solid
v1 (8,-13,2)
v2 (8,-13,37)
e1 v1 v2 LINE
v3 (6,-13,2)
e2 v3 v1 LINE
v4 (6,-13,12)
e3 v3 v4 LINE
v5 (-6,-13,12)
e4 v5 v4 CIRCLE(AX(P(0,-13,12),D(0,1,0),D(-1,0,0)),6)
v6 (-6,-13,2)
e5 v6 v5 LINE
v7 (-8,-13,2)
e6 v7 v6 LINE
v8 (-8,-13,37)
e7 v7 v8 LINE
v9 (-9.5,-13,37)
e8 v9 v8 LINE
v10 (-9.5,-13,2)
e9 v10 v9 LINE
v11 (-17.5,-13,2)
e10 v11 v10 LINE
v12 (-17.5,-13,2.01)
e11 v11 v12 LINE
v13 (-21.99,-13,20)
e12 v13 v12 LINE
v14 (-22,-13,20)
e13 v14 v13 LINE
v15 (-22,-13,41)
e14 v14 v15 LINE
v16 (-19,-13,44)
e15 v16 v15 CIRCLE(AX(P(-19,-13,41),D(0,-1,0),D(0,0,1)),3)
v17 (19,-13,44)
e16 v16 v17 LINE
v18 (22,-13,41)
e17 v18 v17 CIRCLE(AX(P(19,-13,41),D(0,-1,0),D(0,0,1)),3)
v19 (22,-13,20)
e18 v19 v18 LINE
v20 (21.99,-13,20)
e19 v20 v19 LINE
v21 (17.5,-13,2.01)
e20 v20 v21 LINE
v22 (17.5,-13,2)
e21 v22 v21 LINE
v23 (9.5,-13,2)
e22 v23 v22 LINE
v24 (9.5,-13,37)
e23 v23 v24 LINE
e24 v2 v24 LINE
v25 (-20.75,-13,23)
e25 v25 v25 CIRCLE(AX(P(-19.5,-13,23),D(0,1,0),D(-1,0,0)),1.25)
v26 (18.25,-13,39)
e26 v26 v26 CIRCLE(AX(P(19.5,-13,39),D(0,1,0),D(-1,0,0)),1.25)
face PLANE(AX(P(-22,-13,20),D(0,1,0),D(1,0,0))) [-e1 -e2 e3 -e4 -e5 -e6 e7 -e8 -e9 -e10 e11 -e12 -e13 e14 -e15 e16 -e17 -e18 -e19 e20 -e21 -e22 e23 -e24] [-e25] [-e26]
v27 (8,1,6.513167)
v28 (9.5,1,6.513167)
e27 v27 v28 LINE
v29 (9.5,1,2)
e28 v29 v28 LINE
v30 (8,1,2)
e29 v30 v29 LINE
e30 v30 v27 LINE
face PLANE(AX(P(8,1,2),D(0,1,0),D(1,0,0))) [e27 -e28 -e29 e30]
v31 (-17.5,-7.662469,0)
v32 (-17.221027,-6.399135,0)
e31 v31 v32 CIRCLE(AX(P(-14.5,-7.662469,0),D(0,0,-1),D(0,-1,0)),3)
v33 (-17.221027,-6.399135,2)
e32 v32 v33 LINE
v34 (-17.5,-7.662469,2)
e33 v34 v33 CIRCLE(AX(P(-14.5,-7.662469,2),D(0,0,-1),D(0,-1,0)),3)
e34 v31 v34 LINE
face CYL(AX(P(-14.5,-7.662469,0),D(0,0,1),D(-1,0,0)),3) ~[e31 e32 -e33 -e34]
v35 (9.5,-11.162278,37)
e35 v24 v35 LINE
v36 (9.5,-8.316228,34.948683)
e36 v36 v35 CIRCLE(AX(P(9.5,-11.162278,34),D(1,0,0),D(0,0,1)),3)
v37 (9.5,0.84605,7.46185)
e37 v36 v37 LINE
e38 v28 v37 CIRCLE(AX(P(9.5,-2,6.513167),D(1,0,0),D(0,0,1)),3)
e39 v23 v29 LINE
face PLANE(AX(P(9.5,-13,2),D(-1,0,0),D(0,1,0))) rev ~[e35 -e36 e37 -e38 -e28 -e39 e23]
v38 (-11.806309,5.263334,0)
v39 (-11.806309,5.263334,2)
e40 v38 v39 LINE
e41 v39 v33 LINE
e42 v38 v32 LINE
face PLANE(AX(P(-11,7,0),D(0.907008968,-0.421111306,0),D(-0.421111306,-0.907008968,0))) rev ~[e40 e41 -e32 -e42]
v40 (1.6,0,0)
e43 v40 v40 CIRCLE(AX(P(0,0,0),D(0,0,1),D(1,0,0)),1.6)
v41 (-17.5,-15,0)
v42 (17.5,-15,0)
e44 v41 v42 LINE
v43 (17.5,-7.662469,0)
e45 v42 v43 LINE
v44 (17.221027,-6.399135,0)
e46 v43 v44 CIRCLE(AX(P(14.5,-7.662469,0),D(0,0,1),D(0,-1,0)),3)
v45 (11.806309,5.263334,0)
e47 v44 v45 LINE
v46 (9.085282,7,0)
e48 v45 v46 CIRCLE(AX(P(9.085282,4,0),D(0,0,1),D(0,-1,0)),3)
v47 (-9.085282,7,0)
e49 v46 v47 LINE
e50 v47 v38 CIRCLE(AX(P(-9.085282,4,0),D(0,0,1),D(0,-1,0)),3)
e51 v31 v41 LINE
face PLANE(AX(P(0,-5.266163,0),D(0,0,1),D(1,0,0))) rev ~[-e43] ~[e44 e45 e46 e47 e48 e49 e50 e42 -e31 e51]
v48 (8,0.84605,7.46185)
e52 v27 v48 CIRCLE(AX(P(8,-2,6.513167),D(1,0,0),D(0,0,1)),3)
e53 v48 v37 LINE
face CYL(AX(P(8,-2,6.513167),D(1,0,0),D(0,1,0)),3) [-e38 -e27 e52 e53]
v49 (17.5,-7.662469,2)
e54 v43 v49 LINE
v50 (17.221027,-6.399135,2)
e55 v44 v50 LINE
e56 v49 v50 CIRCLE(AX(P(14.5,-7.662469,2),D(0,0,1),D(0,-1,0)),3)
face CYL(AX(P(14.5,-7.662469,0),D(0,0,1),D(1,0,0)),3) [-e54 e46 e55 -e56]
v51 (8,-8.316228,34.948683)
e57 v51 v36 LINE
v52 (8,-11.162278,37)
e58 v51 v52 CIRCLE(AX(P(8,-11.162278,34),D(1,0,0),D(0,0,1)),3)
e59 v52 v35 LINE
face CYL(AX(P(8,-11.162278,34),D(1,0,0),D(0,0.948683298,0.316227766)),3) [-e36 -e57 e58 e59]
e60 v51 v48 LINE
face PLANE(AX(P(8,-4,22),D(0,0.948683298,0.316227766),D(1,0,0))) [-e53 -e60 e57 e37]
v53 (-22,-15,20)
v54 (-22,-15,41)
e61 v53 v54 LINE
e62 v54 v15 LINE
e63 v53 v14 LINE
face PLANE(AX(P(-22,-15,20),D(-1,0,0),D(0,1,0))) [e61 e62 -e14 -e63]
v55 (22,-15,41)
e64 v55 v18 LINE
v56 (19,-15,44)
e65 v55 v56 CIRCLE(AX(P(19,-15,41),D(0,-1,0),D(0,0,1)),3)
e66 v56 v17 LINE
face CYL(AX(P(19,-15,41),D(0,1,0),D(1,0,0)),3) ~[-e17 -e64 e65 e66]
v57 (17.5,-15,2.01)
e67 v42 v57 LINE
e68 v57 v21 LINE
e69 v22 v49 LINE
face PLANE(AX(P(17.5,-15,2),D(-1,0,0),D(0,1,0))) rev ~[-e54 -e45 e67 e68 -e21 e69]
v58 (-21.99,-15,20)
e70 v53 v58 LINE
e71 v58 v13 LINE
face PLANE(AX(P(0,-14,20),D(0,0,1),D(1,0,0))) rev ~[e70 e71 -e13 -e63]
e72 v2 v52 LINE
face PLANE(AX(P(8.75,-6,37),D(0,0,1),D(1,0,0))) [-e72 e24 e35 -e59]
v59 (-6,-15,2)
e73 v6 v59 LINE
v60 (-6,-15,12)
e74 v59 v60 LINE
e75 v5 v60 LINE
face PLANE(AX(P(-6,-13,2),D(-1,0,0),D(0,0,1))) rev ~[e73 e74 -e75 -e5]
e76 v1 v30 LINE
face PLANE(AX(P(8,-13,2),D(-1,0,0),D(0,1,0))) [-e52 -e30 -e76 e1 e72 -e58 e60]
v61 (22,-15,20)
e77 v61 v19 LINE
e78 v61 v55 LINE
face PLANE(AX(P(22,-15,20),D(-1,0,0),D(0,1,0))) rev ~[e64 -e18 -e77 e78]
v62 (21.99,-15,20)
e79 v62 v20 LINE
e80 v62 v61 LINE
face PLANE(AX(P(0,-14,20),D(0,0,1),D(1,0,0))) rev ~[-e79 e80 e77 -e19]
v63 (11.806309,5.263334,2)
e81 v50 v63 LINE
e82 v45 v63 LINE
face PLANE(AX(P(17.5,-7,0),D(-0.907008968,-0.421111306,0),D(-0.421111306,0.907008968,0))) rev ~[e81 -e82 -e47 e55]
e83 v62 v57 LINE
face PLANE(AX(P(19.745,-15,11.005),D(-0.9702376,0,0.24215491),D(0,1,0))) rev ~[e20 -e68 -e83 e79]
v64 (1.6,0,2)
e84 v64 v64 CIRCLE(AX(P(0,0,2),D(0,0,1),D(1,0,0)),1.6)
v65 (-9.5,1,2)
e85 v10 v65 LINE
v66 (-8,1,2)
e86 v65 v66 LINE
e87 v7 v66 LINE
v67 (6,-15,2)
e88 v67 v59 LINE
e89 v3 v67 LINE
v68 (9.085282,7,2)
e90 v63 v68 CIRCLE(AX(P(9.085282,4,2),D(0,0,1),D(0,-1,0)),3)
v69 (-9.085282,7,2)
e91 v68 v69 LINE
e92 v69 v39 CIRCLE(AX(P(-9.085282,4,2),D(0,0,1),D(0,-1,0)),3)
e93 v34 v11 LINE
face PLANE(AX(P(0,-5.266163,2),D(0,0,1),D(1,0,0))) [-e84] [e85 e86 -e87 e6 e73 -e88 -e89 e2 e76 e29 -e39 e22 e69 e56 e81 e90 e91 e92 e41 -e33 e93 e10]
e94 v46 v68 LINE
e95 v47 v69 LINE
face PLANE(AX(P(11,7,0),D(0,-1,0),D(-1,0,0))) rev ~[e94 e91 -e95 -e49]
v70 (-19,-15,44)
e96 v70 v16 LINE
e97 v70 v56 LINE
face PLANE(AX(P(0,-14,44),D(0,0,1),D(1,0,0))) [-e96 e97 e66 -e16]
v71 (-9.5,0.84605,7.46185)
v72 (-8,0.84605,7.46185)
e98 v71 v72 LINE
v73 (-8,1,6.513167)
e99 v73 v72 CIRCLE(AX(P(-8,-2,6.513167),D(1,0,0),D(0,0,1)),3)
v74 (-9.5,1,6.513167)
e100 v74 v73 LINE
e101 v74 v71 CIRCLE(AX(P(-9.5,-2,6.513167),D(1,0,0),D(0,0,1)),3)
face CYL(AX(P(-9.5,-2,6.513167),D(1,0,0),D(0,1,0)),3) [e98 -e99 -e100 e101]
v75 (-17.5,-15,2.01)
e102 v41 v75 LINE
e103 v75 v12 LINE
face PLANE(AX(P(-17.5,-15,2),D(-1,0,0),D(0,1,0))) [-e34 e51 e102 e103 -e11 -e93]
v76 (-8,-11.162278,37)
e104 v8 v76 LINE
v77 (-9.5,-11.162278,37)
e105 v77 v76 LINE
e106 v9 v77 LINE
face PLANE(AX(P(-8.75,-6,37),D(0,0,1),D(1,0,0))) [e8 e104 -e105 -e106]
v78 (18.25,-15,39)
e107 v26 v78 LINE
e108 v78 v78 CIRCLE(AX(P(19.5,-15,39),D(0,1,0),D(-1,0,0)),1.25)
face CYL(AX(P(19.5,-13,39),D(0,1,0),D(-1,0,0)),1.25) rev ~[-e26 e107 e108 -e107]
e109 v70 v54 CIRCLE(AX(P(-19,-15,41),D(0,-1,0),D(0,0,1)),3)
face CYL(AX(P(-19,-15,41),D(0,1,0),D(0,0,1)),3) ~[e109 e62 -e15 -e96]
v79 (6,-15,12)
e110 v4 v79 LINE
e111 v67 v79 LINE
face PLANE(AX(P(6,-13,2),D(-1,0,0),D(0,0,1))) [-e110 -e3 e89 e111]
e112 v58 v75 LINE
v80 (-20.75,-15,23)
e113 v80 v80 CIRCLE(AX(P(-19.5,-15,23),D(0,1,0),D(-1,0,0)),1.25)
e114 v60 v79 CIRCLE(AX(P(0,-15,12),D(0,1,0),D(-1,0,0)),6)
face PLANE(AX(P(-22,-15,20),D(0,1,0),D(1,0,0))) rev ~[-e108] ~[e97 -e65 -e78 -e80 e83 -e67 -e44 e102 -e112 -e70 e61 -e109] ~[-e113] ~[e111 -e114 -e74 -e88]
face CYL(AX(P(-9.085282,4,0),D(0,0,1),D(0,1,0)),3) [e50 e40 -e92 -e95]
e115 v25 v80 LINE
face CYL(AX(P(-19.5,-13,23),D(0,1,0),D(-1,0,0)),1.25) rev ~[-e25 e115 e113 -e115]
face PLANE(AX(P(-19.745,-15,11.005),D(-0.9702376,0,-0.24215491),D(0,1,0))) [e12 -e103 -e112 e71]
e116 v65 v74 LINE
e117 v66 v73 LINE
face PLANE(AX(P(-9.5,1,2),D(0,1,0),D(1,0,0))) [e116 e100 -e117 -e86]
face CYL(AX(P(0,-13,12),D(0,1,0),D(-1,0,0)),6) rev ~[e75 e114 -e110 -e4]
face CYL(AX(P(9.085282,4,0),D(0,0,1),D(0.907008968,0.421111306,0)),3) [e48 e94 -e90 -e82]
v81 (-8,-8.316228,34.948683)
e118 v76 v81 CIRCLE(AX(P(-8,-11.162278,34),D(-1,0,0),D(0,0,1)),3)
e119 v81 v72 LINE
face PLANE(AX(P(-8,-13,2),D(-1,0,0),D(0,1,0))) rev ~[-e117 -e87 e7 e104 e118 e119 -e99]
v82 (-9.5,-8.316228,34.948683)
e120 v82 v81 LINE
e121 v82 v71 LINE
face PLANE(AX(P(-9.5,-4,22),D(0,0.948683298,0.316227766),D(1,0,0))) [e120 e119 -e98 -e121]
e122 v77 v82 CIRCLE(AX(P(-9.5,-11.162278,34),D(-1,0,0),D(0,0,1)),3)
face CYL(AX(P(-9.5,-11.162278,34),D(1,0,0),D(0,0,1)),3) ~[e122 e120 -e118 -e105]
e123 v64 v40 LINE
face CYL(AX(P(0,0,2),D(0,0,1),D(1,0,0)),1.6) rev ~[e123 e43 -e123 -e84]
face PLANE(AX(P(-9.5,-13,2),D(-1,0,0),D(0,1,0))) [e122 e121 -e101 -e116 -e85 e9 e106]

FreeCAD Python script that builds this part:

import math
import FreeCAD as App
import Part
import Sketcher


def edges_at(feature, points):
    """Names of the edges that pass closest to the given points."""
    edges = feature.Shape.Edges
    near = lambda p: min(range(len(edges)), key=lambda i: edges[i].distToShape(Part.Vertex(*p))[0])
    return sorted({f"Edge{near(p) + 1}" for p in points})

doc = App.newDocument("Part")
body = doc.addObject("PartDesign::Body", "Body")

# Sketch on XY plane
sketch1 = body.newObject("Sketcher::SketchObject", "Sketch")
sketch1.AttachmentSupport = (doc.getObject("XY_Plane"), [""])
sketch1.MapMode = "FlatFace"
sketch1.addGeometry([
    Part.LineSegment(App.Vector(-17.5, -15, 0), App.Vector(17.5, -15, 0)),  # 0
    Part.LineSegment(App.Vector(17.5, -15, 0), App.Vector(17.5, -7, 0)),  # 1
    Part.LineSegment(App.Vector(17.5, -7, 0), App.Vector(11, 7, 0)),  # 2
    Part.LineSegment(App.Vector(11, 7, 0), App.Vector(-11, 7, 0)),  # 3
    Part.LineSegment(App.Vector(-11, 7, 0), App.Vector(-17.5, -7, 0)),  # 4
    Part.LineSegment(App.Vector(-17.5, -7, 0), App.Vector(-17.5, -15, 0)),  # 5
], False)
sketch1.addConstraint([
    Sketcher.Constraint("Coincident", 0, 2, 1, 1),
    Sketcher.Constraint("Coincident", 1, 2, 2, 1),
    Sketcher.Constraint("Coincident", 2, 2, 3, 1),
    Sketcher.Constraint("Coincident", 3, 2, 4, 1),
    Sketcher.Constraint("Coincident", 4, 2, 5, 1),
    Sketcher.Constraint("Coincident", 5, 2, 0, 1),
    Sketcher.Constraint("Horizontal", 0),
    Sketcher.Constraint("Vertical", 1),
    Sketcher.Constraint("Horizontal", 3),
    Sketcher.Constraint("Vertical", 5),
    Sketcher.Constraint("Symmetric", 1, 2, 4, 2, -2),
    Sketcher.Constraint("Equal", 2, 4),
    Sketcher.Constraint("DistanceX", 0, 1, 0, 2, 35.0),
    Sketcher.Constraint("DistanceX", 3, 2, 3, 1, 22.0),
    Sketcher.Constraint("DistanceY", 1, 1, 1, 2, 8.0),
    Sketcher.Constraint("DistanceY", 0, 2, -1, 1, 15.0),
    Sketcher.Constraint("DistanceY", -1, 1, 2, 2, 7.0),
])
pad1 = body.newObject("PartDesign::Pad", "Pad")
pad1.Profile = sketch1
pad1.Length = 2

# Sketch on XY plane
sketch2 = body.newObject("Sketcher::SketchObject", "Sketch001")
sketch2.AttachmentSupport = (doc.getObject("XY_Plane"), [""])
sketch2.MapMode = "FlatFace"
sketch2.AttachmentOffset = App.Placement(App.Vector(0, 0, 2), App.Rotation())
sketch2.addGeometry([
    Part.LineSegment(App.Vector(-17.5, -13, 0), App.Vector(-17.5, -15, 0)),
    Part.LineSegment(App.Vector(-17.5, -15, 0), App.Vector(17.5, -15, 0)),
    Part.LineSegment(App.Vector(17.5, -15, 0), App.Vector(17.5, -13, 0)),
    Part.LineSegment(App.Vector(17.5, -13, 0), App.Vector(-17.5, -13, 0)),
], False)
sketch2.addConstraint([
    Sketcher.Constraint("Coincident", 0, 2, 1, 1),
    Sketcher.Constraint("Coincident", 1, 2, 2, 1),
    Sketcher.Constraint("Coincident", 2, 2, 3, 1),
    Sketcher.Constraint("Coincident", 3, 2, 0, 1),
    Sketcher.Constraint("Vertical", 0),
    Sketcher.Constraint("Horizontal", 1),
    Sketcher.Constraint("Vertical", 2),
    Sketcher.Constraint("Horizontal", 3),
    Sketcher.Constraint("DistanceX", 1, 1, 1, 2, 35.0),
    Sketcher.Constraint("DistanceY", 0, 2, 0, 1, 2.0),
    Sketcher.Constraint("DistanceY", 0, 2, -1, 1, 15.0),
    Sketcher.Constraint("DistanceX", 0, 2, -1, 1, 17.5),
])
pad2 = body.newObject("PartDesign::Pad", "Pad001")
pad2.Profile = sketch2
pad2.Length = 18

# Sketch on XY plane
sketch3 = body.newObject("Sketcher::SketchObject", "Sketch002")
sketch3.AttachmentSupport = (doc.getObject("XY_Plane"), [""])
sketch3.MapMode = "FlatFace"
sketch3.AttachmentOffset = App.Placement(App.Vector(0, 0, 20), App.Rotation())
sketch3.addGeometry([
    Part.LineSegment(App.Vector(-22, -13, 0), App.Vector(-22, -15, 0)),
    Part.LineSegment(App.Vector(-22, -15, 0), App.Vector(22, -15, 0)),
    Part.LineSegment(App.Vector(22, -15, 0), App.Vector(22, -13, 0)),
    Part.LineSegment(App.Vector(22, -13, 0), App.Vector(-22, -13, 0)),
], False)
sketch3.addConstraint([
    Sketcher.Constraint("Coincident", 0, 2, 1, 1),
    Sketcher.Constraint("Coincident", 1, 2, 2, 1),
    Sketcher.Constraint("Coincident", 2, 2, 3, 1),
    Sketcher.Constraint("Coincident", 3, 2, 0, 1),
    Sketcher.Constraint("Vertical", 0),
    Sketcher.Constraint("Horizontal", 1),
    Sketcher.Constraint("Vertical", 2),
    Sketcher.Constraint("Horizontal", 3),
    Sketcher.Constraint("DistanceX", 1, 1, 1, 2, 44.0),
    Sketcher.Constraint("DistanceY", 0, 2, 0, 1, 2.0),
    Sketcher.Constraint("DistanceX", 0, 2, -1, 1, 22.0),
    Sketcher.Constraint("DistanceY", 0, 2, -1, 1, 15.0),
])
pad3 = body.newObject("PartDesign::Pad", "Pad002")
pad3.Profile = sketch3
pad3.Length = 24
doc.recompute()

chamfer = body.newObject("PartDesign::Chamfer", "Chamfer")
chamfer.Base = (pad3, edges_at(pad3, [(-17.5, -14, 20)]))
chamfer.ChamferType = "Two distances"
chamfer.Size = 4.49
chamfer.Size2 = 17.99
chamfer.FlipDirection = True
doc.recompute()

chamfer2 = body.newObject("PartDesign::Chamfer", "Chamfer001")
chamfer2.Base = (chamfer, edges_at(chamfer, [(17.5, -14, 20)]))
chamfer2.ChamferType = "Two distances"
chamfer2.Size = 4.49
chamfer2.Size2 = 17.99
chamfer2.FlipDirection = True
doc.recompute()

fillet = body.newObject("PartDesign::Fillet", "Fillet")
fillet.Base = (chamfer2, edges_at(chamfer2, [
    (22, -14, 44),
    (17.5, -7, 1),
    (11, 7, 1),
    (-11, 7, 1),
    (-17.5, -7, 1),
    (-22, -14, 44),
]))
fillet.Radius = 3

# Sketch on XZ plane
sketch4 = body.newObject("Sketcher::SketchObject", "Sketch003")
sketch4.AttachmentSupport = (doc.getObject("XZ_Plane"), [""])
sketch4.MapMode = "FlatFace"
sketch4.AttachmentOffset = App.Placement(App.Vector(0, 0, 13), App.Rotation())
sketch4.addGeometry([
    Part.Circle(App.Vector(19.5, 39, 0), App.Vector(0, 0, 1), 1.25),
    Part.Circle(App.Vector(-19.5, 23, 0), App.Vector(0, 0, 1), 1.25),
], False)
sketch4.addConstraint([
    Sketcher.Constraint("Equal", 0, 1),
    Sketcher.Constraint("Diameter", 0, 2.5),
    Sketcher.Constraint("DistanceY", -1, 1, 0, 3, 39.0),
    Sketcher.Constraint("DistanceY", -1, 1, 1, 3, 23.0),
    Sketcher.Constraint("DistanceX", 1, 3, 0, 3, 39.0),
    Sketcher.Constraint("DistanceX", -1, 1, 0, 3, 19.5),
])
pocket1 = body.newObject("PartDesign::Pocket", "Pocket")
pocket1.Profile = sketch4
pocket1.Length = 5
pocket1.Reversed = True

# Sketch on XY plane
sketch5 = body.newObject("Sketcher::SketchObject", "Sketch004")
sketch5.AttachmentSupport = (doc.getObject("XY_Plane"), [""])
sketch5.MapMode = "FlatFace"
sketch5.AttachmentOffset = App.Placement(App.Vector(0, 0, 2), App.Rotation())
sketch5.addGeometry(Part.Circle(App.Vector(0, 0, 0), App.Vector(0, 0, 1), 1.6), False)
sketch5.addConstraint([
    Sketcher.Constraint("Coincident", 0, 3, -1, 1),
    Sketcher.Constraint("Diameter", 0, 3.2),
])
pocket2 = body.newObject("PartDesign::Pocket", "Pocket001")
pocket2.Profile = sketch5
pocket2.Length = 5

# Sketch on XY plane
sketch6 = body.newObject("Sketcher::SketchObject", "Sketch005")
sketch6.AttachmentSupport = (doc.getObject("XY_Plane"), [""])
sketch6.MapMode = "FlatFace"
sketch6.AttachmentOffset = App.Placement(App.Vector(0, 0, 2), App.Rotation())
sketch6.addGeometry([
    Part.LineSegment(App.Vector(-9.5, 1, 0), App.Vector(-9.5, -13, 0)),  # 0
    Part.LineSegment(App.Vector(-9.5, -13, 0), App.Vector(-8, -13, 0)),  # 1
    Part.LineSegment(App.Vector(-8, -13, 0), App.Vector(-8, 1, 0)),  # 2
    Part.LineSegment(App.Vector(-8, 1, 0), App.Vector(-9.5, 1, 0)),  # 3
    Part.LineSegment(App.Vector(8, 1, 0), App.Vector(8, -13, 0)),  # 4
    Part.LineSegment(App.Vector(8, -13, 0), App.Vector(9.5, -13, 0)),  # 5
    Part.LineSegment(App.Vector(9.5, -13, 0), App.Vector(9.5, 1, 0)),  # 6
    Part.LineSegment(App.Vector(9.5, 1, 0), App.Vector(8, 1, 0)),  # 7
], False)
sketch6.addConstraint([
    Sketcher.Constraint("Coincident", 0, 2, 1, 1),
    Sketcher.Constraint("Coincident", 1, 2, 2, 1),
    Sketcher.Constraint("Coincident", 2, 2, 3, 1),
    Sketcher.Constraint("Coincident", 3, 2, 0, 1),
    Sketcher.Constraint("Coincident", 4, 2, 5, 1),
    Sketcher.Constraint("Coincident", 5, 2, 6, 1),
    Sketcher.Constraint("Coincident", 6, 2, 7, 1),
    Sketcher.Constraint("Coincident", 7, 2, 4, 1),
    Sketcher.Constraint("Vertical", 0),
    Sketcher.Constraint("Horizontal", 1),
    Sketcher.Constraint("Vertical", 2),
    Sketcher.Constraint("Horizontal", 3),
    Sketcher.Constraint("Vertical", 4),
    Sketcher.Constraint("Horizontal", 5),
    Sketcher.Constraint("Vertical", 6),
    Sketcher.Constraint("Horizontal", 7),
    Sketcher.Constraint("Symmetric", 1, 2, 4, 2, -2),
    Sketcher.Constraint("Symmetric", 3, 2, 6, 2, -2),
    Sketcher.Constraint("DistanceY", 0, 2, 0, 1, 14.0),
    Sketcher.Constraint("DistanceX", 1, 1, 1, 2, 1.5),
    Sketcher.Constraint("DistanceY", 0, 2, -1, 1, 13.0),
    Sketcher.Constraint("DistanceX", 1, 2, -1, 1, 8.0),
])
pad4 = body.newObject("PartDesign::Pad", "Pad003")
pad4.Profile = sketch6
pad4.Length = 35
doc.recompute()

chamfer3 = body.newObject("PartDesign::Chamfer", "Chamfer002")
chamfer3.Base = (pad4, edges_at(pad4, [(-8.75, 1, 37)]))
chamfer3.ChamferType = "Two distances"
chamfer3.Size = 10
chamfer3.Size2 = 30
doc.recompute()

chamfer4 = body.newObject("PartDesign::Chamfer", "Chamfer003")
chamfer4.Base = (chamfer3, edges_at(chamfer3, [(8.75, 1, 37)]))
chamfer4.ChamferType = "Two distances"
chamfer4.Size = 10
chamfer4.Size2 = 30
chamfer4.FlipDirection = True
doc.recompute()

fillet2 = body.newObject("PartDesign::Fillet", "Fillet001")
fillet2.Base = (chamfer4, edges_at(chamfer4, [
    (8.75, -9, 37),
    (-8.75, -9, 37),
    (-8.75, 1, 7),
    (8.75, 1, 7),
]))
fillet2.Radius = 3

# Sketch on XZ plane
sketch7 = body.newObject("Sketcher::SketchObject", "Sketch006")
sketch7.AttachmentSupport = (doc.getObject("XZ_Plane"), [""])
sketch7.MapMode = "FlatFace"
sketch7.AttachmentOffset = App.Placement(App.Vector(0, 0, 13), App.Rotation())
sketch7.addGeometry([
    Part.LineSegment(App.Vector(6, 12, 0), App.Vector(6, 2, 0)),
    Part.LineSegment(App.Vector(6, 2, 0), App.Vector(-6, 2, 0)),
    Part.LineSegment(App.Vector(-6, 2, 0), App.Vector(-6, 12, 0)),
    Part.ArcOfCircle(Part.Circle(App.Vector(0, 12, 0), App.Vector(0, 0, 1), 6), math.radians(0), math.radians(180)),
], False)
sketch7.addConstraint([
    Sketcher.Constraint("Coincident", 0, 2, 1, 1),
    Sketcher.Constraint("Coincident", 1, 2, 2, 1),
    Sketcher.Constraint("Tangent", 2, 2, 3, 2),
    Sketcher.Constraint("Tangent", 3, 1, 0, 1),
    Sketcher.Constraint("Vertical", 0),
    Sketcher.Constraint("Horizontal", 1),
    Sketcher.Constraint("Vertical", 2),
    Sketcher.Constraint("PointOnObject", 3, 3, -2),
    Sketcher.Constraint("Radius", 3, 6.0),
    Sketcher.Constraint("DistanceY", 0, 2, 0, 1, 10.0),
    Sketcher.Constraint("DistanceY", -1, 1, 3, 3, 12.0),
])
pocket3 = body.newObject("PartDesign::Pocket", "Pocket002")
pocket3.Profile = sketch7
pocket3.Length = 5
pocket3.Reversed = True

doc.recompute()
